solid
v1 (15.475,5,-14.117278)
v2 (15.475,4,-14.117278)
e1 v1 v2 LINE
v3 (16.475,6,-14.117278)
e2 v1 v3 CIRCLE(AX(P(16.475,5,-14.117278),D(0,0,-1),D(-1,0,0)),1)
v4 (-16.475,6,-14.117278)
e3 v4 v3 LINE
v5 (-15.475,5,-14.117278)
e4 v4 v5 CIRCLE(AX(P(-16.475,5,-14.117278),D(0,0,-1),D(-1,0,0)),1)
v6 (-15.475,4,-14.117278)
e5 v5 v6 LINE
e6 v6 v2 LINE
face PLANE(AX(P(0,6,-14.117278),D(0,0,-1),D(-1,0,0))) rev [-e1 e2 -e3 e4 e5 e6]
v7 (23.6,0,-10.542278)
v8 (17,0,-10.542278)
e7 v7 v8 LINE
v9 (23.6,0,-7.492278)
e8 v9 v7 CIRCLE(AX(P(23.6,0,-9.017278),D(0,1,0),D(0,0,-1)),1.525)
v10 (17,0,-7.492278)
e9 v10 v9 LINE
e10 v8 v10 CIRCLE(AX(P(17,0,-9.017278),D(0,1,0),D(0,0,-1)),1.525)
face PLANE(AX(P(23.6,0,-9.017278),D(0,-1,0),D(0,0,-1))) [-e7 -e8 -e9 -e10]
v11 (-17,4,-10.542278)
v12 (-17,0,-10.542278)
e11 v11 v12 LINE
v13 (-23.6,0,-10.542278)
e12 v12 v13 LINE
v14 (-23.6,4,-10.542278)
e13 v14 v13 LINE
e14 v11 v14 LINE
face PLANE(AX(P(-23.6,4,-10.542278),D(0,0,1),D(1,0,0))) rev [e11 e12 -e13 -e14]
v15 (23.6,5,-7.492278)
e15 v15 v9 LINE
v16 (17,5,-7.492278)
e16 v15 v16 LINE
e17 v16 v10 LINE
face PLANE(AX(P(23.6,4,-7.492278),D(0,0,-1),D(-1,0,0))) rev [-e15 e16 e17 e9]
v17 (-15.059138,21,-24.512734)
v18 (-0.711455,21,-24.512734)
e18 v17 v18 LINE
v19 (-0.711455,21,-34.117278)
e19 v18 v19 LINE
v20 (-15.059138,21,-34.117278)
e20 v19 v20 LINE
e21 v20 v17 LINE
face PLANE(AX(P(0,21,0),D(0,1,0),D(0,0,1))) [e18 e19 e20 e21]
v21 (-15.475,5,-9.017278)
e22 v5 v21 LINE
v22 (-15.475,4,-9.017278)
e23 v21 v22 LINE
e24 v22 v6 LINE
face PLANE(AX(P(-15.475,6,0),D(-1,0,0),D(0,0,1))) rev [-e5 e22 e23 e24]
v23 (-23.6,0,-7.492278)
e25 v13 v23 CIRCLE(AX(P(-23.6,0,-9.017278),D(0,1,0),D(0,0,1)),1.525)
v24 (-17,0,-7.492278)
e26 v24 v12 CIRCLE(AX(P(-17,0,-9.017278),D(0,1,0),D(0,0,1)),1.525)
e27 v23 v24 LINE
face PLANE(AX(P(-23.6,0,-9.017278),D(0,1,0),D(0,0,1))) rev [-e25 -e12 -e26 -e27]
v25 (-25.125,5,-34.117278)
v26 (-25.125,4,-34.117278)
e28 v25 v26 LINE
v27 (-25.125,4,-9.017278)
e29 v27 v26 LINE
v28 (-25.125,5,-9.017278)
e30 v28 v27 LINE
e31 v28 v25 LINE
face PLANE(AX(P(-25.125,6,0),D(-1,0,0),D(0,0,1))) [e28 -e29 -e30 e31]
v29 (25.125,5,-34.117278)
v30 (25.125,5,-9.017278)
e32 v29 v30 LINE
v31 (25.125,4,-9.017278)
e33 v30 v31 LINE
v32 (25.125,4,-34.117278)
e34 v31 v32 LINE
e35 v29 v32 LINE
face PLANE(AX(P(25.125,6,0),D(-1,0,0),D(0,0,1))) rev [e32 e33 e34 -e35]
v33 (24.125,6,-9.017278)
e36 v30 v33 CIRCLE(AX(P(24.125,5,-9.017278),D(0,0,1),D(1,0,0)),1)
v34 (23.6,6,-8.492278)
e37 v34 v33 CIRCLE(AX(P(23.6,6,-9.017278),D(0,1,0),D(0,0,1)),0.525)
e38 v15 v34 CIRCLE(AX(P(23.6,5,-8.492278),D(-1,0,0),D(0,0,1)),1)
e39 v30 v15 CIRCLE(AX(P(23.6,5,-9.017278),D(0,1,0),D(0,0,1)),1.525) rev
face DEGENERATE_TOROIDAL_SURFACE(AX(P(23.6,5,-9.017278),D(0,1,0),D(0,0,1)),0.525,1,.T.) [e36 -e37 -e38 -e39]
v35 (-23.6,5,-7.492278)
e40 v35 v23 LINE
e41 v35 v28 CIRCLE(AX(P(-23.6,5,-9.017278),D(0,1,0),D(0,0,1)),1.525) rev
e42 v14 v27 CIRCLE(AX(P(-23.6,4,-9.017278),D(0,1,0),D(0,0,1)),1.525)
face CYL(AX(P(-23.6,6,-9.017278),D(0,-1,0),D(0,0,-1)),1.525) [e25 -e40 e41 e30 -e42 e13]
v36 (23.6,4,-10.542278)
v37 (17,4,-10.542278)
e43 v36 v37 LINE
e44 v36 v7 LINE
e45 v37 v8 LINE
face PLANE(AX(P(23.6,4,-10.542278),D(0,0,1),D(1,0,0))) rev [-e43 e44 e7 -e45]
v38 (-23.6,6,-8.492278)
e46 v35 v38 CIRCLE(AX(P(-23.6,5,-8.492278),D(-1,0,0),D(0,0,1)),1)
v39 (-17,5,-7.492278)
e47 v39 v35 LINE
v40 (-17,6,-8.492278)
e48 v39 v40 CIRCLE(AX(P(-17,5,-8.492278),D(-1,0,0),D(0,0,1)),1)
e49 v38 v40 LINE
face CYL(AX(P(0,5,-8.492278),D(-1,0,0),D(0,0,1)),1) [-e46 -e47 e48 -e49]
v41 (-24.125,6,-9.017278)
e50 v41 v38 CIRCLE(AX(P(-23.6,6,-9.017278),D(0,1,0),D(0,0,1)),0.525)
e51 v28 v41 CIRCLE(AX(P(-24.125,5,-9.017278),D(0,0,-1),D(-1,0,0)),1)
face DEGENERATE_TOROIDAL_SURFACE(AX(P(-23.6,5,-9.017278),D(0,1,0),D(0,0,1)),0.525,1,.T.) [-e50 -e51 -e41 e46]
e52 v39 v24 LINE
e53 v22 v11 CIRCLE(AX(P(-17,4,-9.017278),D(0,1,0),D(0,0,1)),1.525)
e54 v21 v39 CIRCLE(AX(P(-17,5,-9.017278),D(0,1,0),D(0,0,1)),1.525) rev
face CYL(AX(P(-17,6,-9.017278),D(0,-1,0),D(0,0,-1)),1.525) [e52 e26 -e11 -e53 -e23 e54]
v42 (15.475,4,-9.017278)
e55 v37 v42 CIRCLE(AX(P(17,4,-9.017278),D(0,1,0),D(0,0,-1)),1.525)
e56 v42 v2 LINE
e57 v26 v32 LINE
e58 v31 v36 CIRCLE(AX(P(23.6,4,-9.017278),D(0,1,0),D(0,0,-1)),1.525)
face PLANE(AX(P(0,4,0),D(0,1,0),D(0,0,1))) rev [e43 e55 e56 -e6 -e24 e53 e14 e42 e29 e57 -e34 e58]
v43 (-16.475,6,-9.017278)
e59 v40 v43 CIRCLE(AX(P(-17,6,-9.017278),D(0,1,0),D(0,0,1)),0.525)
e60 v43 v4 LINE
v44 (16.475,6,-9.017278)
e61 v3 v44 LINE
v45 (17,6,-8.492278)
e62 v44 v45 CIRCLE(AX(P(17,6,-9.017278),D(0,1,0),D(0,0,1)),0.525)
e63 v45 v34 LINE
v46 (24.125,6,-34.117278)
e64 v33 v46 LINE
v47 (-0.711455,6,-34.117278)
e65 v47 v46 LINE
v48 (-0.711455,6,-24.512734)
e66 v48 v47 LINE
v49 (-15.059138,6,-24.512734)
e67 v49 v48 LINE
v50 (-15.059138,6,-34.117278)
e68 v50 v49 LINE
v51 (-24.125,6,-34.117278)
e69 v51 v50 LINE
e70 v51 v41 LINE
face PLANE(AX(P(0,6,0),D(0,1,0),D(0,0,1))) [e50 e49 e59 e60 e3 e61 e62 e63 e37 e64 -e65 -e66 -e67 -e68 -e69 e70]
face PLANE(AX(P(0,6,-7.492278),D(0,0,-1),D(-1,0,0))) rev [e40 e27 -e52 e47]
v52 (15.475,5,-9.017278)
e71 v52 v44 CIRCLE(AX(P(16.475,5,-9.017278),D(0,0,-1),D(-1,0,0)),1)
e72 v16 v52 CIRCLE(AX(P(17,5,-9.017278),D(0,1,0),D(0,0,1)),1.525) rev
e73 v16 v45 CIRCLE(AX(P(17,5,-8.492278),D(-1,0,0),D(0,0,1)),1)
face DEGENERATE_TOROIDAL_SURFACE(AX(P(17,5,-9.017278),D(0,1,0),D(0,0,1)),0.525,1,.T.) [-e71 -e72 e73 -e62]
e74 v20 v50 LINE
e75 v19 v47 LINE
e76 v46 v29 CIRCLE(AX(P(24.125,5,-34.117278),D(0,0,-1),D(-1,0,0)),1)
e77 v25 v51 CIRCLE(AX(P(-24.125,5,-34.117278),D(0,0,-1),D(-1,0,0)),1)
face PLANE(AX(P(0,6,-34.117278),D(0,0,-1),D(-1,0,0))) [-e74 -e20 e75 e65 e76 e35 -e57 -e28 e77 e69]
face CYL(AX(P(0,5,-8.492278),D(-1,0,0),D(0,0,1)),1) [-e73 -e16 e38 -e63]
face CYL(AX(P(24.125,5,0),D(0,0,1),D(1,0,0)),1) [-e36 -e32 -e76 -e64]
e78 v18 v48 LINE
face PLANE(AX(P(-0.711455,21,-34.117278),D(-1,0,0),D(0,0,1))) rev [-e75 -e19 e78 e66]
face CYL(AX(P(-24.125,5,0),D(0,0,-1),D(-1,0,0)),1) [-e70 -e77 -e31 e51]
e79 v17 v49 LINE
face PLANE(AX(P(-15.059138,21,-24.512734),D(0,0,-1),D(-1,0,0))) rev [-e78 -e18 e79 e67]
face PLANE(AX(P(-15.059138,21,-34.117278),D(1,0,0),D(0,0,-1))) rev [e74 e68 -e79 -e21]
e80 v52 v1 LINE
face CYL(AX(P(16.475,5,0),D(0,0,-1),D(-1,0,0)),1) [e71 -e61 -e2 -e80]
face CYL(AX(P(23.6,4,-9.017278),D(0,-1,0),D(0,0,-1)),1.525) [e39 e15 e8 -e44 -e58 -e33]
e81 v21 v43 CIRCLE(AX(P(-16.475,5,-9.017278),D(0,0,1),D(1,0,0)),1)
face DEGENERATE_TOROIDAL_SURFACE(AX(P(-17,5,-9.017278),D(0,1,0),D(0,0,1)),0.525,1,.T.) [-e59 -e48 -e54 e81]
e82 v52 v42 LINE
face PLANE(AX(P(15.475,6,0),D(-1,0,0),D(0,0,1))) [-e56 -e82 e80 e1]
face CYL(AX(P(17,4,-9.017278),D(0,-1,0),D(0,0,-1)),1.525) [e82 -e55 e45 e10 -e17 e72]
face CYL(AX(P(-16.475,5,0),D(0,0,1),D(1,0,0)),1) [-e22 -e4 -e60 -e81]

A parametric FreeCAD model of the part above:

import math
import FreeCAD as App
import Part
import Sketcher
from FreeCAD import Vector
Q = App.Units.Quantity


def edges_at(feature, points):
    """Names of the edges that pass closest to the given points."""
    edges = feature.Shape.Edges
    near = lambda p: min(range(len(edges)), key=lambda i: edges[i].distToShape(Part.Vertex(*p))[0])
    return sorted({f"Edge{near(p) + 1}" for p in points})

doc = App.newDocument("Part")
body = doc.addObject("PartDesign::Body", "Body")

sketch1 = body.newObject("Sketcher::SketchObject", "Sketch")
sketch1.AttachmentSupport = (doc.getObject("XZ_Plane"), [""])
sketch1.MapMode = "FlatFace"
sketch1.addGeometry([
    Part.LineSegment(Vector(-17, -10.542278, 0), Vector(-23.6, -10.542278, 0)),
    Part.ArcOfCircle(Part.Circle(Vector(-23.6, -9.017278, 0), Vector(0, 0, 1), 1.525), math.radians(90), math.radians(270)),
    Part.LineSegment(Vector(-23.6, -7.492278, 0), Vector(-17, -7.492278, 0)),
    Part.ArcOfCircle(Part.Circle(Vector(-17, -9.017278, 0), Vector(0, 0, 1), 1.525), math.radians(-90), math.radians(90)),
], False)
sketch1.addConstraint([
    Sketcher.Constraint("Tangent", 0, 2, 1, 2),
    Sketcher.Constraint("Tangent", 1, 1, 2, 1),
    Sketcher.Constraint("Tangent", 2, 2, 3, 2),
    Sketcher.Constraint("Tangent", 3, 1, 0, 1),
    Sketcher.Constraint("Horizontal", 0),
    Sketcher.Constraint("Horizontal", 2),
    Sketcher.Constraint("DistanceX", 0, 2, 0, 1, Q("6.6 mm")),
    Sketcher.Constraint("DistanceX", 3, 3, -1, 1, Q("17 mm")),
    Sketcher.Constraint("Radius", 1, Q("1.525 mm")),
    Sketcher.Constraint("DistanceY", 1, 3, -1, 1, Q("9.017278 mm")),
])
pad1 = body.newObject("PartDesign::Pad", "Pad")
pad1.Profile = sketch1
pad1.Length = 4
pad1.Reversed = True
body2 = doc.addObject("PartDesign::Body", "Body001")

sketch2 = body2.newObject("Sketcher::SketchObject", "Sketch001")
sketch2.AttachmentSupport = (doc.getObject("XZ_Plane001"), [""])
sketch2.MapMode = "FlatFace"
sketch2.addGeometry([
    Part.LineSegment(Vector(17, -7.492278, 0), Vector(23.6, -7.492278, 0)),
    Part.ArcOfCircle(Part.Circle(Vector(23.6, -9.017278, 0), Vector(0, 0, 1), 1.525), math.radians(-90), math.radians(90)),
    Part.LineSegment(Vector(23.6, -10.542278, 0), Vector(17, -10.542278, 0)),
    Part.ArcOfCircle(Part.Circle(Vector(17, -9.017278, 0), Vector(0, 0, 1), 1.525), math.radians(90), math.radians(270)),
], False)
sketch2.addConstraint([
    Sketcher.Constraint("Tangent", 0, 2, 1, 2),
    Sketcher.Constraint("Tangent", 1, 1, 2, 1),
    Sketcher.Constraint("Tangent", 2, 2, 3, 2),
    Sketcher.Constraint("Tangent", 3, 1, 0, 1),
    Sketcher.Constraint("Horizontal", 0),
    Sketcher.Constraint("Horizontal", 2),
    Sketcher.Constraint("DistanceX", 0, 1, 0, 2, Q("6.6 mm")),
    Sketcher.Constraint("DistanceX", -1, 1, 3, 3, Q("17 mm")),
    Sketcher.Constraint("Radius", 1, Q("1.525 mm")),
    Sketcher.Constraint("DistanceY", 1, 3, -1, 1, Q("9.017278 mm")),
])
pad2 = body2.newObject("PartDesign::Pad", "Pad001")
pad2.Profile = sketch2
pad2.Length = 4
pad2.Reversed = True
body.AllowCompound = True
doc.recompute()

boolean = body.newObject("PartDesign::Boolean", "Boolean")
boolean.Type = "Fuse"
boolean.addObjects([body2])

sketch3 = body.newObject("Sketcher::SketchObject", "Sketch002")
sketch3.AttachmentSupport = (doc.getObject("XZ_Plane"), [""])
sketch3.MapMode = "FlatFace"
sketch3.AttachmentOffset = App.Placement(Vector(0, 0, -4), App.Rotation())
sketch3.addGeometry([
    Part.ArcOfCircle(Part.Circle(Vector(17, -9.017278, 0), Vector(0, 0, 1), 1.525), math.radians(90), math.radians(180)),
    Part.LineSegment(Vector(17, -7.492278, 0), Vector(23.6, -7.492278, 0)),
    Part.ArcOfCircle(Part.Circle(Vector(23.6, -9.017278, 0), Vector(0, 0, 1), 1.525), math.radians(0), math.radians(90)),
    Part.LineSegment(Vector(25.125, -9.017278, 0), Vector(25.125, -34.117278, 0)),
    Part.LineSegment(Vector(25.125, -34.117278, 0), Vector(-25.125, -34.117278, 0)),
    Part.LineSegment(Vector(-25.125, -34.117278, 0), Vector(-25.125, -9.017278, 0)),
    Part.ArcOfCircle(Part.Circle(Vector(-23.6, -9.017278, 0), Vector(0, 0, 1), 1.525), math.radians(90), math.radians(180)),
    Part.LineSegment(Vector(-23.6, -7.492278, 0), Vector(-17, -7.492278, 0)),
    Part.ArcOfCircle(Part.Circle(Vector(-17, -9.017278, 0), Vector(0, 0, 1), 1.525), math.radians(0), math.radians(90)),
    Part.LineSegment(Vector(-15.475, -9.017278, 0), Vector(-15.475, -14.117278, 0)),
    Part.LineSegment(Vector(-15.475, -14.117278, 0), Vector(15.475, -14.117278, 0)),
    Part.LineSegment(Vector(15.475, -14.117278, 0), Vector(15.475, -9.017278, 0)),
], False)
sketch3.addConstraint([
    Sketcher.Constraint("Tangent", 0, 1, 1, 1),
    Sketcher.Constraint("Tangent", 1, 2, 2, 2),
    Sketcher.Constraint("Tangent", 2, 1, 3, 1),
    Sketcher.Constraint("Coincident", 3, 2, 4, 1),
    Sketcher.Constraint("Coincident", 4, 2, 5, 1),
    Sketcher.Constraint("Tangent", 5, 2, 6, 2),
    Sketcher.Constraint("Tangent", 6, 1, 7, 1),
    Sketcher.Constraint("Tangent", 7, 2, 8, 2),
    Sketcher.Constraint("Tangent", 8, 1, 9, 1),
    Sketcher.Constraint("Coincident", 9, 2, 10, 1),
    Sketcher.Constraint("Coincident", 10, 2, 11, 1),
    Sketcher.Constraint("Tangent", 11, 2, 0, 2),
    Sketcher.Constraint("Horizontal", 1),
    Sketcher.Constraint("Vertical", 3),
    Sketcher.Constraint("Horizontal", 4),
    Sketcher.Constraint("Vertical", 5),
    Sketcher.Constraint("Horizontal", 7),
    Sketcher.Constraint("Vertical", 9),
    Sketcher.Constraint("Horizontal", 10),
    Sketcher.Constraint("Vertical", 11),
    Sketcher.Constraint("Equal", 0, 2),
    Sketcher.Constraint("Equal", 2, 6),
    Sketcher.Constraint("Equal", 6, 8),
    Sketcher.Constraint("Symmetric", 2, 3, 6, 3, -2),
    Sketcher.Constraint("Equal", 1, 7),
    Sketcher.Constraint("DistanceX", 1, 1, 1, 2, Q("6.6 mm")),
    Sketcher.Constraint("DistanceY", 3, 2, 3, 1, Q("25.1 mm")),
    Sketcher.Constraint("DistanceY", 9, 2, 9, 1, Q("5.1 mm")),
    Sketcher.Constraint("DistanceX", -1, 1, 0, 3, Q("17 mm")),
    Sketcher.Constraint("Radius", 0, Q("1.525 mm")),
    Sketcher.Constraint("DistanceY", 0, 3, -1, 1, Q("9.017278 mm")),
])
pad3 = body.newObject("PartDesign::Pad", "Pad002")
pad3.Profile = sketch3
pad3.Length = 2
pad3.Reversed = True
doc.recompute()

fillet = body.newObject("PartDesign::Fillet", "Fillet")
fillet.Base = (pad3, edges_at(pad3, [
    (-25.125, 6, -21.567),
    (15.475, 6, -11.567),
    (-24.678, 6, -7.939),
    (-20.3, 6, -7.492),
    (-15.922, 6, -7.939),
    (-15.475, 6, -11.567),
    (15.922, 6, -7.939),
    (20.3, 6, -7.492),
    (24.678, 6, -7.939),
    (25.125, 6, -21.567),
]))
fillet.Radius = 1

sketch4 = body.newObject("Sketcher::SketchObject", "Sketch003")
sketch4.AttachmentSupport = (doc.getObject("XZ_Plane"), [""])
sketch4.MapMode = "FlatFace"
sketch4.AttachmentOffset = App.Placement(Vector(0, 0, -6), App.Rotation())
sketch4.addGeometry([
    Part.LineSegment(Vector(-15.059138, -34.117278, 0), Vector(-15.059138, -24.512734, 0)),
    Part.LineSegment(Vector(-15.059138, -24.512734, 0), Vector(-0.711455, -24.512734, 0)),
    Part.LineSegment(Vector(-0.711455, -24.512734, 0), Vector(-0.711455, -34.117278, 0)),
    Part.LineSegment(Vector(-0.711455, -34.117278, 0), Vector(-15.059138, -34.117278, 0)),
], False)
sketch4.addConstraint([
    Sketcher.Constraint("Coincident", 0, 2, 1, 1),
    Sketcher.Constraint("Coincident", 1, 2, 2, 1),
    Sketcher.Constraint("Coincident", 2, 2, 3, 1),
    Sketcher.Constraint("Coincident", 3, 2, 0, 1),
    Sketcher.Constraint("Vertical", 0),
    Sketcher.Constraint("Horizontal", 1),
    Sketcher.Constraint("Vertical", 2),
    Sketcher.Constraint("Horizontal", 3),
    Sketcher.Constraint("DistanceX", 1, 1, 1, 2, Q("14.347683 mm")),
    Sketcher.Constraint("DistanceY", 0, 1, 0, 2, Q("9.604544 mm")),
    Sketcher.Constraint("DistanceX", 0, 2, -1, 1, Q("15.059138 mm")),
    Sketcher.Constraint("DistanceY", 2, 2, -1, 1, Q("34.117278 mm")),
])
pad4 = body.newObject("PartDesign::Pad", "Pad003")
pad4.Profile = sketch4
pad4.Length = 15
pad4.Reversed = True

doc.recompute()
